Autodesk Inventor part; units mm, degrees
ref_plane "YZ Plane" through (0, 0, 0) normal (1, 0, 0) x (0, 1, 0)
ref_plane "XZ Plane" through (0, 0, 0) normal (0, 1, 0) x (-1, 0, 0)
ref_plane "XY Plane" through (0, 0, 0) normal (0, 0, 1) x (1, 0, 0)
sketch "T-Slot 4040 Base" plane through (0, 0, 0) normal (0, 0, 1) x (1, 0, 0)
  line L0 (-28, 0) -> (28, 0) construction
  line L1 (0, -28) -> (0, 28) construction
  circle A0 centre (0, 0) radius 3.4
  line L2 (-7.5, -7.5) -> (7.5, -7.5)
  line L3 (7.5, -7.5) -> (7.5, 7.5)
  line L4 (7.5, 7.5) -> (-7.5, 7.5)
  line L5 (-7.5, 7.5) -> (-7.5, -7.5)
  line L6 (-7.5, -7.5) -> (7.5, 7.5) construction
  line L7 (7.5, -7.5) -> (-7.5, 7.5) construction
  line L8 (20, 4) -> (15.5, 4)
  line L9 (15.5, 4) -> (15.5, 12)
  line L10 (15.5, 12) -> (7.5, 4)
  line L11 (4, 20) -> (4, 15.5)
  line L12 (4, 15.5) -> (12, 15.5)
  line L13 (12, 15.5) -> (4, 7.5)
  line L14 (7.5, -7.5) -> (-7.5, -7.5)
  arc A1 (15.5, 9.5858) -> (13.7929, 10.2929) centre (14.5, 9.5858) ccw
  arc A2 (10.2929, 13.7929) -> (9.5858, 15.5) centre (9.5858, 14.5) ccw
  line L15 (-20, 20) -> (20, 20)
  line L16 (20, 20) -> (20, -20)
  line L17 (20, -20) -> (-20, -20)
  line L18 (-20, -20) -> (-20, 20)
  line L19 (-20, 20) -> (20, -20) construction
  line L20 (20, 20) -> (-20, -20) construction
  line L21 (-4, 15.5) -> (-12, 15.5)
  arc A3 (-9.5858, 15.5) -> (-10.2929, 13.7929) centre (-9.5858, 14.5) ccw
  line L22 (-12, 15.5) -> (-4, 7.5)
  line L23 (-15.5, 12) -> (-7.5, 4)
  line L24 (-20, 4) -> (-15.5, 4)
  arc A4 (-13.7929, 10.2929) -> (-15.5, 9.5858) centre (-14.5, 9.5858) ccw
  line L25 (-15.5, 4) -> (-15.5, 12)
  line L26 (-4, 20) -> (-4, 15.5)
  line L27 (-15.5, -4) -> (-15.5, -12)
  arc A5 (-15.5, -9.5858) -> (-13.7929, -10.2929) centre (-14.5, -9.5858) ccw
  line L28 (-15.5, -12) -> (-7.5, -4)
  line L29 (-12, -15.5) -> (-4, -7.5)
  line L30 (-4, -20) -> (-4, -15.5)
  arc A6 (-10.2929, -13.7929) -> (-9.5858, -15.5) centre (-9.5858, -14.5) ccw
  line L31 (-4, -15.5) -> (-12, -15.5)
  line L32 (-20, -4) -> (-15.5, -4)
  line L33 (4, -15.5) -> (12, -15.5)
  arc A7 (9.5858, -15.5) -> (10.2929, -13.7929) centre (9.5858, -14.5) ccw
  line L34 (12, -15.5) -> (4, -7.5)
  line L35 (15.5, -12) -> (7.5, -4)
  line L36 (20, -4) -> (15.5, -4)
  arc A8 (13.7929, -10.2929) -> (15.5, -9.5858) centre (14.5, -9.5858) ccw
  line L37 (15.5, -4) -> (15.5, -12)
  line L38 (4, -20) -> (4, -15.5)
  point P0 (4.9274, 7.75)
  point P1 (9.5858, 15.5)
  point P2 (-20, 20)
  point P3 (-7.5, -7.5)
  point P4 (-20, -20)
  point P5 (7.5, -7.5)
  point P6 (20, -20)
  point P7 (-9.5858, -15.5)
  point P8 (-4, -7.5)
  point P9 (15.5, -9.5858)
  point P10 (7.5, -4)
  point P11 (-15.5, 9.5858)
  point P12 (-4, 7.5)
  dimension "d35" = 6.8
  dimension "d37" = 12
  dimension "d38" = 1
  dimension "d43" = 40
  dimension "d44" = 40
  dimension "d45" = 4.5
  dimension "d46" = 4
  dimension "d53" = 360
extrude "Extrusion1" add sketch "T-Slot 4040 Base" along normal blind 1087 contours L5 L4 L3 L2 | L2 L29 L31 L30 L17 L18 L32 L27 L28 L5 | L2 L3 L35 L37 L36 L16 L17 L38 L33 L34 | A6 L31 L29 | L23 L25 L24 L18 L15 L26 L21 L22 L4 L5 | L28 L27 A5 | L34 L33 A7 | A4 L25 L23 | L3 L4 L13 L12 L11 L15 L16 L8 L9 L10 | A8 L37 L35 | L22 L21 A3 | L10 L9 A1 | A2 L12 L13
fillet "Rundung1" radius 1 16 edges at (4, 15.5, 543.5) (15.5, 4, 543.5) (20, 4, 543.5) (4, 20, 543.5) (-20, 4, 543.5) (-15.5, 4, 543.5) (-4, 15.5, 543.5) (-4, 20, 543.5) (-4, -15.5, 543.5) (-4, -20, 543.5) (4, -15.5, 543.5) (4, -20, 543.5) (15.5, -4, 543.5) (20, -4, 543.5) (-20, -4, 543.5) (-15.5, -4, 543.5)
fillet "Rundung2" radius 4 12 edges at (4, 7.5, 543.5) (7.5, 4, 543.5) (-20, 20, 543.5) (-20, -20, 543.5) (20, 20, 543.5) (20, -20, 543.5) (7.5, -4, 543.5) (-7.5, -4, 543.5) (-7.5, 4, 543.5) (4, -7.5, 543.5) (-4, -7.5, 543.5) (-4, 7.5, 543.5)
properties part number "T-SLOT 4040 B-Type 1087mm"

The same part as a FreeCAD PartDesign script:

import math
import FreeCAD as App
import Part
import Sketcher
from FreeCAD import Vector
Q = App.Units.Quantity


def edges_at(feature, points):
    """Names of the edges that pass closest to the given points."""
    edges = feature.Shape.Edges
    near = lambda p: min(range(len(edges)), key=lambda i: edges[i].distToShape(Part.Vertex(*p))[0])
    return sorted({f"Edge{near(p) + 1}" for p in points})

doc = App.newDocument("Part")
body = doc.addObject("PartDesign::Body", "Body")

# Sketch on XY plane
sketch1 = doc.addObject("Sketcher::SketchObject", "Sketch")
body.addObject(sketch1)
sketch1.AttachmentSupport = (doc.XY_Plane, [""])
sketch1.MapMode = "FlatFace"
sketch1.addGeometry([
    Part.LineSegment(Vector(-7.5, 4, 0), Vector(-7.5, -4, 0)),  # 0
    Part.LineSegment(Vector(-7.5, -4, 0), Vector(-13.7929, -10.2929, 0)),  # 1
    Part.ArcOfCircle(Part.Circle(Vector(-14.5, -9.5858, 0), Vector(0, 0, 1), 1), math.radians(180), math.radians(315)),  # 2
    Part.LineSegment(Vector(-15.5, -9.5858, 0), Vector(-15.5, -4, 0)),  # 3
    Part.LineSegment(Vector(-15.5, -4, 0), Vector(-20, -4, 0)),  # 4
    Part.LineSegment(Vector(-20, -4, 0), Vector(-20, -20, 0)),  # 5
    Part.LineSegment(Vector(-20, -20, 0), Vector(-4, -20, 0)),  # 6
    Part.LineSegment(Vector(-4, -20, 0), Vector(-4, -15.5, 0)),  # 7
    Part.LineSegment(Vector(-4, -15.5, 0), Vector(-9.5858, -15.5, 0)),  # 8
    Part.ArcOfCircle(Part.Circle(Vector(-9.5858, -14.5, 0), Vector(0, 0, 1), 0.99999), math.radians(135), math.radians(270)),  # 9
    Part.LineSegment(Vector(-10.2929, -13.7929, 0), Vector(-4, -7.5, 0)),  # 10
    Part.LineSegment(Vector(-4, -7.5, 0), Vector(4, -7.5, 0)),  # 11
    Part.LineSegment(Vector(4, -7.5, 0), Vector(10.2929, -13.7929, 0)),  # 12
    Part.ArcOfCircle(Part.Circle(Vector(9.5858, -14.5, 0), Vector(0, 0, 1), 1), math.radians(-90), math.radians(45)),  # 13
    Part.LineSegment(Vector(9.5858, -15.5, 0), Vector(4, -15.5, 0)),  # 14
    Part.LineSegment(Vector(4, -15.5, 0), Vector(4, -20, 0)),  # 15
    Part.LineSegment(Vector(4, -20, 0), Vector(20, -20, 0)),  # 16
    Part.LineSegment(Vector(20, -20, 0), Vector(20, -4, 0)),  # 17
    Part.LineSegment(Vector(20, -4, 0), Vector(15.5, -4, 0)),  # 18
    Part.LineSegment(Vector(15.5, -4, 0), Vector(15.5, -9.5858, 0)),  # 19
    Part.ArcOfCircle(Part.Circle(Vector(14.5, -9.5858, 0), Vector(0, 0, 1), 0.99999), math.radians(-135), math.radians(0)),  # 20
    Part.LineSegment(Vector(13.7929, -10.2929, 0), Vector(7.5, -4, 0)),  # 21
    Part.LineSegment(Vector(7.5, -4, 0), Vector(7.5, 4, 0)),  # 22
    Part.LineSegment(Vector(7.5, 4, 0), Vector(13.7929, 10.2929, 0)),  # 23
    Part.ArcOfCircle(Part.Circle(Vector(14.5, 9.5858, 0), Vector(0, 0, 1), 1), math.radians(0), math.radians(135)),  # 24
    Part.LineSegment(Vector(15.5, 9.5858, 0), Vector(15.5, 4, 0)),  # 25
    Part.LineSegment(Vector(15.5, 4, 0), Vector(20, 4, 0)),  # 26
    Part.LineSegment(Vector(20, 4, 0), Vector(20, 20, 0)),  # 27
    Part.LineSegment(Vector(20, 20, 0), Vector(4, 20, 0)),  # 28
    Part.LineSegment(Vector(4, 20, 0), Vector(4, 15.5, 0)),  # 29
    Part.LineSegment(Vector(4, 15.5, 0), Vector(9.5858, 15.5, 0)),  # 30
    Part.ArcOfCircle(Part.Circle(Vector(9.5858, 14.5, 0), Vector(0, 0, 1), 0.99999), math.radians(-45), math.radians(90)),  # 31
    Part.LineSegment(Vector(10.2929, 13.7929, 0), Vector(4, 7.5, 0)),  # 32
    Part.LineSegment(Vector(4, 7.5, 0), Vector(-4, 7.5, 0)),  # 33
    Part.LineSegment(Vector(-4, 7.5, 0), Vector(-10.2929, 13.7929, 0)),  # 34
    Part.ArcOfCircle(Part.Circle(Vector(-9.5858, 14.5, 0), Vector(0, 0, 1), 1), math.radians(90), math.radians(225)),  # 35
    Part.LineSegment(Vector(-9.5858, 15.5, 0), Vector(-4, 15.5, 0)),  # 36
    Part.LineSegment(Vector(-4, 15.5, 0), Vector(-4, 20, 0)),  # 37
    Part.LineSegment(Vector(-4, 20, 0), Vector(-20, 20, 0)),  # 38
    Part.LineSegment(Vector(-20, 20, 0), Vector(-20, 4, 0)),  # 39
    Part.LineSegment(Vector(-20, 4, 0), Vector(-15.5, 4, 0)),  # 40
    Part.LineSegment(Vector(-15.5, 4, 0), Vector(-15.5, 9.5858, 0)),  # 41
    Part.ArcOfCircle(Part.Circle(Vector(-14.5, 9.5858, 0), Vector(0, 0, 1), 0.99999), math.radians(45), math.radians(180)),  # 42
    Part.LineSegment(Vector(-13.7929, 10.2929, 0), Vector(-7.5, 4, 0)),  # 43
    Part.Circle(Vector(0, 0, 0), Vector(0, 0, 1), 3.4),  # 44
], False)
sketch1.addConstraint([
    Sketcher.Constraint("Coincident", 0, 2, 1, 1),
    Sketcher.Constraint("Tangent", 1, 2, 2, 2),
    Sketcher.Constraint("Tangent", 2, 1, 3, 1),
    Sketcher.Constraint("Coincident", 3, 2, 4, 1),
    Sketcher.Constraint("Coincident", 4, 2, 5, 1),
    Sketcher.Constraint("Coincident", 5, 2, 6, 1),
    Sketcher.Constraint("Coincident", 6, 2, 7, 1),
    Sketcher.Constraint("Coincident", 7, 2, 8, 1),
    Sketcher.Constraint("Tangent", 8, 2, 9, 2),
    Sketcher.Constraint("Tangent", 9, 1, 10, 1),
    Sketcher.Constraint("Coincident", 10, 2, 11, 1),
    Sketcher.Constraint("Coincident", 11, 2, 12, 1),
    Sketcher.Constraint("Tangent", 12, 2, 13, 2),
    Sketcher.Constraint("Tangent", 13, 1, 14, 1),
    Sketcher.Constraint("Coincident", 14, 2, 15, 1),
    Sketcher.Constraint("Coincident", 15, 2, 16, 1),
    Sketcher.Constraint("Coincident", 16, 2, 17, 1),
    Sketcher.Constraint("Coincident", 17, 2, 18, 1),
    Sketcher.Constraint("Coincident", 18, 2, 19, 1),
    Sketcher.Constraint("Tangent", 19, 2, 20, 2),
    Sketcher.Constraint("Tangent", 20, 1, 21, 1),
    Sketcher.Constraint("Coincident", 21, 2, 22, 1),
    Sketcher.Constraint("Coincident", 22, 2, 23, 1),
    Sketcher.Constraint("Tangent", 23, 2, 24, 2),
    Sketcher.Constraint("Tangent", 24, 1, 25, 1),
    Sketcher.Constraint("Coincident", 25, 2, 26, 1),
    Sketcher.Constraint("Coincident", 26, 2, 27, 1),
    Sketcher.Constraint("Coincident", 27, 2, 28, 1),
    Sketcher.Constraint("Coincident", 28, 2, 29, 1),
    Sketcher.Constraint("Coincident", 29, 2, 30, 1),
    Sketcher.Constraint("Tangent", 30, 2, 31, 2),
    Sketcher.Constraint("Tangent", 31, 1, 32, 1),
    Sketcher.Constraint("Coincident", 32, 2, 33, 1),
    Sketcher.Constraint("Coincident", 33, 2, 34, 1),
    Sketcher.Constraint("Tangent", 34, 2, 35, 2),
    Sketcher.Constraint("Tangent", 35, 1, 36, 1),
    Sketcher.Constraint("Coincident", 36, 2, 37, 1),
    Sketcher.Constraint("Coincident", 37, 2, 38, 1),
    Sketcher.Constraint("Coincident", 38, 2, 39, 1),
    Sketcher.Constraint("Coincident", 39, 2, 40, 1),
    Sketcher.Constraint("Coincident", 40, 2, 41, 1),
    Sketcher.Constraint("Tangent", 41, 2, 42, 2),
    Sketcher.Constraint("Tangent", 42, 1, 43, 1),
    Sketcher.Constraint("Coincident", 43, 2, 0, 1),
    Sketcher.Constraint("Vertical", 0),
    Sketcher.Constraint("Vertical", 3),
    Sketcher.Constraint("Horizontal", 4),
    Sketcher.Constraint("Vertical", 5),
    Sketcher.Constraint("Horizontal", 6),
    Sketcher.Constraint("Vertical", 7),
    Sketcher.Constraint("Horizontal", 8),
    Sketcher.Constraint("Horizontal", 11),
    Sketcher.Constraint("Horizontal", 14),
    Sketcher.Constraint("Vertical", 15),
    Sketcher.Constraint("Horizontal", 16),
    Sketcher.Constraint("Vertical", 17),
    Sketcher.Constraint("Horizontal", 18),
    Sketcher.Constraint("Vertical", 19),
    Sketcher.Constraint("Vertical", 22),
    Sketcher.Constraint("Vertical", 25),
    Sketcher.Constraint("Horizontal", 26),
    Sketcher.Constraint("Vertical", 27),
    Sketcher.Constraint("Horizontal", 28),
    Sketcher.Constraint("Vertical", 29),
    Sketcher.Constraint("Horizontal", 30),
    Sketcher.Constraint("Horizontal", 33),
    Sketcher.Constraint("Horizontal", 36),
    Sketcher.Constraint("Vertical", 37),
    Sketcher.Constraint("Horizontal", 38),
    Sketcher.Constraint("Vertical", 39),
    Sketcher.Constraint("Horizontal", 40),
    Sketcher.Constraint("Vertical", 41),
    Sketcher.Constraint("Coincident", 44, 3, -1, 1),
    Sketcher.Constraint("Equal", 2, 9),
    Sketcher.Constraint("Equal", 9, 13),
    Sketcher.Constraint("Equal", 13, 20),
    Sketcher.Constraint("Equal", 20, 24),
    Sketcher.Constraint("Equal", 24, 31),
    Sketcher.Constraint("Equal", 31, 35),
    Sketcher.Constraint("Equal", 35, 42),
    Sketcher.Constraint("Symmetric", 2, 3, 24, 3, -1, 1),
    Sketcher.Constraint("Symmetric", 9, 3, 31, 3, -1, 1),
    Sketcher.Constraint("Symmetric", 13, 3, 35, 3, -1, 1),
    Sketcher.Constraint("Symmetric", 20, 3, 42, 3, -1, 1),
    Sketcher.Constraint("Symmetric", 0, 2, 22, 2, -1, 1),
    Sketcher.Constraint("Symmetric", 4, 2, 26, 2, -1, 1),
    Sketcher.Constraint("Symmetric", 6, 2, 28, 2, -1, 1),
    Sketcher.Constraint("Symmetric", 10, 2, 32, 2, -1, 1),
    Sketcher.Constraint("Symmetric", 15, 2, 37, 2, -1, 1),
    Sketcher.Constraint("Symmetric", 17, 2, 39, 2, -1, 1),
    Sketcher.Constraint("Symmetric", 9, 3, 13, 3, -2),
    Sketcher.Constraint("Symmetric", 2, 3, 20, 3, -2),
    Sketcher.Constraint("Symmetric", 6, 2, 15, 2, -2),
    Sketcher.Constraint("Symmetric", 4, 2, 17, 2, -2),
    Sketcher.Constraint("Parallel", 1, 10),
    Sketcher.Constraint("Perpendicular", 10, 12),
    Sketcher.Constraint("Parallel", 12, 21),
    Sketcher.Constraint("Perpendicular", 32, 34),
    Sketcher.Constraint("Parallel", 34, 43),
    Sketcher.Constraint("Horizontal", 0, 2, 3, 2),
    Sketcher.Constraint("Horizontal", 9, 1, 12, 2),
    Sketcher.Constraint("Vertical", 7, 2, 10, 2),
    Sketcher.Constraint("Equal", 33, 0),
    Sketcher.Constraint("Equal", 36, 3),
    Sketcher.Constraint("Equal", 38, 5),
    Sketcher.Constraint("Equal", 40, 7),
    Sketcher.Constraint("Radius", 2, Q("1 mm")),
    Sketcher.Constraint("Diameter", 44, Q("6.8 mm")),
    Sketcher.Constraint("DistanceX", 4, 2, 4, 1, Q("4.5 mm")),
    Sketcher.Constraint("DistanceY", 0, 2, -1, 1, Q("4 mm")),
    Sketcher.Constraint("DistanceX", 6, 1, 6, 2, Q("16 mm")),
    Sketcher.Constraint("DistanceX", 2, 3, 0, 2, Q("7 mm")),
])
pad1 = doc.addObject("PartDesign::Pad", "Pad")
body.addObject(pad1)
pad1.Profile = sketch1
pad1.Length = 1087
doc.recompute()

fillet = doc.addObject("PartDesign::Fillet", "Fillet")
body.addObject(fillet)
fillet.Base = (pad1, edges_at(pad1, [
    (4, 15.5, 543.5),
    (15.5, 4, 543.5),
    (20, 4, 543.5),
    (4, 20, 543.5),
    (-20, 4, 543.5),
    (-15.5, 4, 543.5),
    (-4, 15.5, 543.5),
    (-4, 20, 543.5),
    (-4, -15.5, 543.5),
    (-4, -20, 543.5),
    (4, -15.5, 543.5),
    (4, -20, 543.5),
    (15.5, -4, 543.5),
    (20, -4, 543.5),
    (-20, -4, 543.5),
    (-15.5, -4, 543.5),
]))
fillet.Radius = 1
doc.recompute()

fillet2 = doc.addObject("PartDesign::Fillet", "Fillet001")
body.addObject(fillet2)
fillet2.Base = (fillet, edges_at(fillet, [
    (4, 7.5, 543.5),
    (7.5, 4, 543.5),
    (-20, 20, 543.5),
    (-20, -20, 543.5),
    (20, 20, 543.5),
    (20, -20, 543.5),
    (7.5, -4, 543.5),
    (-7.5, -4, 543.5),
    (-7.5, 4, 543.5),
    (4, -7.5, 543.5),
    (-4, -7.5, 543.5),
    (-4, 7.5, 543.5),
]))
fillet2.Radius = 4

doc.recompute()
